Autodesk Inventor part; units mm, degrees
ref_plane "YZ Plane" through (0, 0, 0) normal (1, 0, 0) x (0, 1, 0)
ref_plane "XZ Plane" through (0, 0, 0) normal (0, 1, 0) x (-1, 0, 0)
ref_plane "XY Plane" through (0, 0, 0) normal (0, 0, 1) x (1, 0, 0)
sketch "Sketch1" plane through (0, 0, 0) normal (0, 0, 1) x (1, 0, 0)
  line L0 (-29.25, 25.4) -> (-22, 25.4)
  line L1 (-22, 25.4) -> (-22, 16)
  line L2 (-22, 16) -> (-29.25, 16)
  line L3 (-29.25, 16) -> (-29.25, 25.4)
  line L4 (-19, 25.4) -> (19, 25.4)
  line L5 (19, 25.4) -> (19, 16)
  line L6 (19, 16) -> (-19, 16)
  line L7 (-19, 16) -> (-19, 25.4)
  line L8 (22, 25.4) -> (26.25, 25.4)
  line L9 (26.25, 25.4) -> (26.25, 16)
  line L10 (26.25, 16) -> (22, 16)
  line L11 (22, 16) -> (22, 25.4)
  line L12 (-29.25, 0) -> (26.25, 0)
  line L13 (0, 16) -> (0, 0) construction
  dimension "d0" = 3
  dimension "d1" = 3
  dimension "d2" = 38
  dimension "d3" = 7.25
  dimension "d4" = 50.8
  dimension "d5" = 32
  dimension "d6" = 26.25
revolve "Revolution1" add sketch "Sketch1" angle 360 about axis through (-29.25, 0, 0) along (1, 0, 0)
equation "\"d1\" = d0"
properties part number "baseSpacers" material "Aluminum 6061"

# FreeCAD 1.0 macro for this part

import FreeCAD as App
import Part
import Sketcher
from FreeCAD import Vector
Q = App.Units.Quantity

doc = App.newDocument("Part")
params = doc.addObject("Spreadsheet::Sheet", "Params")
for row, (alias, value) in enumerate([
    ("sketch1_width", "38 mm"),
    ("sketch1_width2", "7.25 mm"),
    ("sketch1_height", "9.4 mm"),
    ("revolution_angle", "360 deg"),
], start=1):
    params.set(f"A{row}", alias)
    params.set(f"B{row}", "=" + value)
    params.setAlias(f"B{row}", alias)

body = doc.addObject("PartDesign::Body", "Body")
body.AllowCompound = True

# Sketch on XY plane
sketch1 = body.newObject("Sketcher::SketchObject", "Sketch")
sketch1.AttachmentSupport = (doc.getObject("XY_Plane"), [""])
sketch1.MapMode = "FlatFace"
sketch1.addGeometry(Part.LineSegment(Vector(-22, 25.4, 0), Vector(-29.25, 25.4, 0)), False)
sketch1.addGeometry(Part.LineSegment(Vector(-29.25, 25.4, 0), Vector(-29.25, 16, 0)), False)
sketch1.addGeometry(Part.LineSegment(Vector(-29.25, 16, 0), Vector(-22, 16, 0)), False)
sketch1.addGeometry(Part.LineSegment(Vector(-22, 16, 0), Vector(-22, 25.4, 0)), False)
sketch1.addGeometry(Part.LineSegment(Vector(19, 25.4, 0), Vector(-19, 25.4, 0)), False)
sketch1.addGeometry(Part.LineSegment(Vector(-19, 25.4, 0), Vector(-19, 16, 0)), False)
sketch1.addGeometry(Part.LineSegment(Vector(-19, 16, 0), Vector(19, 16, 0)), False)
sketch1.addGeometry(Part.LineSegment(Vector(19, 16, 0), Vector(19, 25.4, 0)), False)
sketch1.addGeometry(Part.LineSegment(Vector(26.25, 25.4, 0), Vector(22, 25.4, 0)), False)
sketch1.addGeometry(Part.LineSegment(Vector(22, 25.4, 0), Vector(22, 16, 0)), False)
sketch1.addGeometry(Part.LineSegment(Vector(22, 16, 0), Vector(26.25, 16, 0)), False)
sketch1.addGeometry(Part.LineSegment(Vector(26.25, 16, 0), Vector(26.25, 25.4, 0)), False)
sketch1.addConstraint(Sketcher.Constraint("Coincident", 0, 2, 1, 1))
sketch1.addConstraint(Sketcher.Constraint("Coincident", 1, 2, 2, 1))
sketch1.addConstraint(Sketcher.Constraint("Coincident", 2, 2, 3, 1))
sketch1.addConstraint(Sketcher.Constraint("Coincident", 3, 2, 0, 1))
sketch1.addConstraint(Sketcher.Constraint("Coincident", 4, 2, 5, 1))
sketch1.addConstraint(Sketcher.Constraint("Coincident", 5, 2, 6, 1))
sketch1.addConstraint(Sketcher.Constraint("Coincident", 6, 2, 7, 1))
sketch1.addConstraint(Sketcher.Constraint("Coincident", 7, 2, 4, 1))
sketch1.addConstraint(Sketcher.Constraint("Coincident", 8, 2, 9, 1))
sketch1.addConstraint(Sketcher.Constraint("Coincident", 9, 2, 10, 1))
sketch1.addConstraint(Sketcher.Constraint("Coincident", 10, 2, 11, 1))
sketch1.addConstraint(Sketcher.Constraint("Coincident", 11, 2, 8, 1))
sketch1.addConstraint(Sketcher.Constraint("Horizontal", 0))
sketch1.addConstraint(Sketcher.Constraint("Vertical", 1))
sketch1.addConstraint(Sketcher.Constraint("Horizontal", 2))
sketch1.addConstraint(Sketcher.Constraint("Vertical", 3))
sketch1.addConstraint(Sketcher.Constraint("Horizontal", 4))
sketch1.addConstraint(Sketcher.Constraint("Vertical", 5))
sketch1.addConstraint(Sketcher.Constraint("Horizontal", 6))
sketch1.addConstraint(Sketcher.Constraint("Vertical", 7))
sketch1.addConstraint(Sketcher.Constraint("Horizontal", 8))
sketch1.addConstraint(Sketcher.Constraint("Vertical", 9))
sketch1.addConstraint(Sketcher.Constraint("Horizontal", 10))
sketch1.addConstraint(Sketcher.Constraint("Vertical", 11))
sketch1.addConstraint(Sketcher.Constraint("Symmetric", 3, 2, 8, 2, -2))
sketch1.addConstraint(Sketcher.Constraint("Horizontal", 3, 2, 4, 2))
sketch1.addConstraint(Sketcher.Constraint("Horizontal", 2, 2, 5, 2))
sketch1.addConstraint(Sketcher.Constraint("Horizontal", 6, 2, 9, 2))
sketch1.addConstraint(Sketcher.Constraint("DistanceX", 4, 2, 4, 1, Q("38 mm")))
sketch1.addConstraint(Sketcher.Constraint("DistanceX", 3, 2, 4, 2, Q("3 mm")))
sketch1.addConstraint(Sketcher.Constraint("DistanceX", 7, 2, 8, 2, Q("3 mm")))
sketch1.addConstraint(Sketcher.Constraint("DistanceX", 0, 2, 0, 1, Q("7.25 mm")))
sketch1.addConstraint(Sketcher.Constraint("DistanceX", -1, 1, 10, 2, Q("26.25 mm")))
sketch1.addConstraint(Sketcher.Constraint("DistanceY", 1, 2, 1, 1, Q("9.4 mm")))
sketch1.addConstraint(Sketcher.Constraint("DistanceY", -1, 1, 1, 2, Q("16 mm")))
sketch1.setExpression("Constraints[28]", "Params.sketch1_width")
sketch1.setExpression("Constraints[31]", "Params.sketch1_width2")
sketch1.setExpression("Constraints[33]", "Params.sketch1_height")
revolution = body.newObject("PartDesign::Revolution", "Revolution")
revolution.Profile = sketch1
revolution.ReferenceAxis = (sketch1, ["H_Axis"])
revolution.setExpression("Angle", "Params.revolution_angle")

doc.recompute()
